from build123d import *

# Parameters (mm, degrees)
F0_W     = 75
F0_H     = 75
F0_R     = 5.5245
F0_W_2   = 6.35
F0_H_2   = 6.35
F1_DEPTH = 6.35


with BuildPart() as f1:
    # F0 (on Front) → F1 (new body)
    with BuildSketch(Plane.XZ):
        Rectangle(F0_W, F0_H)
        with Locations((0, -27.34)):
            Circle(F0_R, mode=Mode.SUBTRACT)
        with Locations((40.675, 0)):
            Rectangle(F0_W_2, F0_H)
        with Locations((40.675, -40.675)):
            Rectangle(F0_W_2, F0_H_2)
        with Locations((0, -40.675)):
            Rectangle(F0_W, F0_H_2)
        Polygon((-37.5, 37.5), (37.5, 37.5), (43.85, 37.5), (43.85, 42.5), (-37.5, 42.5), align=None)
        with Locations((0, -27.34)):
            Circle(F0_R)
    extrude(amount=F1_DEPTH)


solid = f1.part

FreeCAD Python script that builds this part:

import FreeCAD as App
import Part
import Sketcher
from FreeCAD import Vector

doc = App.newDocument("Part")
params = doc.addObject("Spreadsheet::Sheet", "Params")
for row, (alias, value) in enumerate([
    ("pad1_length", "0.25 in"),
], start=1):
    params.set(f"A{row}", alias)
    params.set(f"B{row}", "=" + value)
    params.setAlias(f"B{row}", alias)

body = doc.addObject("PartDesign::Body", "Body")

# Sketch on XZ plane
sketch1 = doc.addObject("Sketcher::SketchObject", "Sketch")
body.addObject(sketch1)
sketch1.AttachmentSupport = (doc.XZ_Plane, [""])
sketch1.MapMode = "FlatFace"
sketch1.addGeometry(Part.LineSegment(Vector(-37.5, -43.85, 0), Vector(43.85, -43.85, 0)), False)
sketch1.addGeometry(Part.LineSegment(Vector(43.85, -43.85, 0), Vector(43.85, 42.5, 0)), False)
sketch1.addGeometry(Part.LineSegment(Vector(43.85, 42.5, 0), Vector(-37.5, 42.5, 0)), False)
sketch1.addGeometry(Part.LineSegment(Vector(-37.5, 42.5, 0), Vector(-37.5, -43.85, 0)), False)
sketch1.addConstraint(Sketcher.Constraint("Coincident", 0, 2, 1, 1))
sketch1.addConstraint(Sketcher.Constraint("Coincident", 1, 2, 2, 1))
sketch1.addConstraint(Sketcher.Constraint("Coincident", 2, 2, 3, 1))
sketch1.addConstraint(Sketcher.Constraint("Coincident", 3, 2, 0, 1))
sketch1.addConstraint(Sketcher.Constraint("Horizontal", 0))
sketch1.addConstraint(Sketcher.Constraint("Vertical", 1))
sketch1.addConstraint(Sketcher.Constraint("Horizontal", 2))
sketch1.addConstraint(Sketcher.Constraint("Vertical", 3))
sketch1.addConstraint(Sketcher.Constraint("DistanceX", 0, 1, 0, 2, 81.35))
sketch1.addConstraint(Sketcher.Constraint("DistanceY", 1, 1, 1, 2, 86.35))
sketch1.addConstraint(Sketcher.Constraint("DistanceX", -1, 1, 0, 2, 43.85))
sketch1.addConstraint(Sketcher.Constraint("DistanceY", 0, 2, -1, 1, 43.85))
pad1 = doc.addObject("PartDesign::Pad", "Pad")
body.addObject(pad1)
pad1.Profile = sketch1
pad1.setExpression("Length", "Params.pad1_length")

doc.recompute()
